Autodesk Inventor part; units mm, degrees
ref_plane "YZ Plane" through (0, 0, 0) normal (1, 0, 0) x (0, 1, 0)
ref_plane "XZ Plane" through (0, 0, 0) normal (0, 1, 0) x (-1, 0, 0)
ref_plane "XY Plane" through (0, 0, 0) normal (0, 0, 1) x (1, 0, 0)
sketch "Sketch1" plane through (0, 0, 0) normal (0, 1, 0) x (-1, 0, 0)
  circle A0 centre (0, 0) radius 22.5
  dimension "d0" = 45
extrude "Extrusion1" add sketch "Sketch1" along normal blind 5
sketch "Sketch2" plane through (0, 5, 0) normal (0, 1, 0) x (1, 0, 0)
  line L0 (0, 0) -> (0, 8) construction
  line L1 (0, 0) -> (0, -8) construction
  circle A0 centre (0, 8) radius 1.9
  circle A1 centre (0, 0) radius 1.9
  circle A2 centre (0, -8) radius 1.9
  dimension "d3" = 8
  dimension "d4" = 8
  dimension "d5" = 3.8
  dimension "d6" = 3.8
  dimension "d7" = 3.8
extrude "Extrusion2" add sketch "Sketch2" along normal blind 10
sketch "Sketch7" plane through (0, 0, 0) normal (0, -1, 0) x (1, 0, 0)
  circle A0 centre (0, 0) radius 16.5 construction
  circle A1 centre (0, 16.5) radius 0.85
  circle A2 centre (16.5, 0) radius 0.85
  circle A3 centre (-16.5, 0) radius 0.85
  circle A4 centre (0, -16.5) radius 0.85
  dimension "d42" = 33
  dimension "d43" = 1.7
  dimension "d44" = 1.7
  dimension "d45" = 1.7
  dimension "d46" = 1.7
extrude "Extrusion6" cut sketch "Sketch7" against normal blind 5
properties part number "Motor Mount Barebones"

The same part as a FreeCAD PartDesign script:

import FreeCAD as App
import Part
import Sketcher

doc = App.newDocument("Part")
body = doc.addObject("PartDesign::Body", "Body")

sketch1 = body.newObject("Sketcher::SketchObject", "Sketch")
sketch1.AttachmentSupport = (doc.getObject("XZ_Plane"), [""])
sketch1.MapMode = "FlatFace"
sketch1.addGeometry(Part.Circle(App.Vector(0, 0, 0), App.Vector(0, 0, 1), 22), False)
sketch1.addConstraint([
    Sketcher.Constraint("Coincident", 0, 3, -1, 1),
    Sketcher.Constraint("Diameter", 0, 45.0),
])
pad1 = body.newObject("PartDesign::Pad", "Pad")
pad1.Profile = sketch1
pad1.Length = 5
pad1.Reversed = True

sketch2 = body.newObject("Sketcher::SketchObject", "Sketch001")
sketch2.AttachmentSupport = (doc.getObject("XZ_Plane"), [""])
sketch2.MapMode = "FlatFace"
sketch2.AttachmentOffset = App.Placement(App.Vector(0, 0, -5), App.Rotation())
sketch2.addGeometry([
    Part.Circle(App.Vector(0, -8, 0), App.Vector(0, 0, 1), 1.9),
    Part.Circle(App.Vector(0, 0, 0), App.Vector(0, 0, 1), 1.9),
    Part.Circle(App.Vector(0, 8, 0), App.Vector(0, 0, 1), 1.9),
], False)
sketch2.addConstraint([
    Sketcher.Constraint("Coincident", 1, 3, -1, 1),
    Sketcher.Constraint("Equal", 0, 1),
    Sketcher.Constraint("Equal", 1, 2),
    Sketcher.Constraint("Symmetric", 0, 3, 2, 3, -1, 1),
    Sketcher.Constraint("PointOnObject", 0, 3, -2),
    Sketcher.Constraint("Diameter", 0, 3.8),
    Sketcher.Constraint("DistanceY", 0, 3, -1, 1, 8.0),
])
pad2 = body.newObject("PartDesign::Pad", "Pad001")
pad2.Profile = sketch2
pad2.Length = 10
pad2.Reversed = True

sketch3 = body.newObject("Sketcher::SketchObject", "Sketch002")
sketch3.AttachmentSupport = (doc.getObject("XZ_Plane"), [""])
sketch3.MapMode = "FlatFace"
sketch3.addGeometry([
    Part.Circle(App.Vector(0, 16.5, 0), App.Vector(0, 0, 1), 0.8),
    Part.Circle(App.Vector(16.5, 0, 0), App.Vector(0, 0, 1), 0.8),
    Part.Circle(App.Vector(-16.5, 0, 0), App.Vector(0, 0, 1), 0.8),
    Part.Circle(App.Vector(0, -16.5, 0), App.Vector(0, 0, 1), 0.8),
], False)
sketch3.addConstraint([
    Sketcher.Constraint("Equal", 0, 1),
    Sketcher.Constraint("Equal", 1, 2),
    Sketcher.Constraint("Equal", 2, 3),
    Sketcher.Constraint("Symmetric", 1, 3, 2, 3, -1, 1),
    Sketcher.Constraint("Symmetric", 0, 3, 3, 3, -1, 1),
    Sketcher.Constraint("PointOnObject", 0, 3, -2),
    Sketcher.Constraint("PointOnObject", 1, 3, -1),
    Sketcher.Constraint("Diameter", 0, 1.7),
    Sketcher.Constraint("DistanceX", 2, 3, 1, 3, 33.0),
    Sketcher.Constraint("DistanceY", 3, 3, 0, 3, 33.0),
])
pocket1 = body.newObject("PartDesign::Pocket", "Pocket")
pocket1.Profile = sketch3
pocket1.Length = 5

doc.recompute()
